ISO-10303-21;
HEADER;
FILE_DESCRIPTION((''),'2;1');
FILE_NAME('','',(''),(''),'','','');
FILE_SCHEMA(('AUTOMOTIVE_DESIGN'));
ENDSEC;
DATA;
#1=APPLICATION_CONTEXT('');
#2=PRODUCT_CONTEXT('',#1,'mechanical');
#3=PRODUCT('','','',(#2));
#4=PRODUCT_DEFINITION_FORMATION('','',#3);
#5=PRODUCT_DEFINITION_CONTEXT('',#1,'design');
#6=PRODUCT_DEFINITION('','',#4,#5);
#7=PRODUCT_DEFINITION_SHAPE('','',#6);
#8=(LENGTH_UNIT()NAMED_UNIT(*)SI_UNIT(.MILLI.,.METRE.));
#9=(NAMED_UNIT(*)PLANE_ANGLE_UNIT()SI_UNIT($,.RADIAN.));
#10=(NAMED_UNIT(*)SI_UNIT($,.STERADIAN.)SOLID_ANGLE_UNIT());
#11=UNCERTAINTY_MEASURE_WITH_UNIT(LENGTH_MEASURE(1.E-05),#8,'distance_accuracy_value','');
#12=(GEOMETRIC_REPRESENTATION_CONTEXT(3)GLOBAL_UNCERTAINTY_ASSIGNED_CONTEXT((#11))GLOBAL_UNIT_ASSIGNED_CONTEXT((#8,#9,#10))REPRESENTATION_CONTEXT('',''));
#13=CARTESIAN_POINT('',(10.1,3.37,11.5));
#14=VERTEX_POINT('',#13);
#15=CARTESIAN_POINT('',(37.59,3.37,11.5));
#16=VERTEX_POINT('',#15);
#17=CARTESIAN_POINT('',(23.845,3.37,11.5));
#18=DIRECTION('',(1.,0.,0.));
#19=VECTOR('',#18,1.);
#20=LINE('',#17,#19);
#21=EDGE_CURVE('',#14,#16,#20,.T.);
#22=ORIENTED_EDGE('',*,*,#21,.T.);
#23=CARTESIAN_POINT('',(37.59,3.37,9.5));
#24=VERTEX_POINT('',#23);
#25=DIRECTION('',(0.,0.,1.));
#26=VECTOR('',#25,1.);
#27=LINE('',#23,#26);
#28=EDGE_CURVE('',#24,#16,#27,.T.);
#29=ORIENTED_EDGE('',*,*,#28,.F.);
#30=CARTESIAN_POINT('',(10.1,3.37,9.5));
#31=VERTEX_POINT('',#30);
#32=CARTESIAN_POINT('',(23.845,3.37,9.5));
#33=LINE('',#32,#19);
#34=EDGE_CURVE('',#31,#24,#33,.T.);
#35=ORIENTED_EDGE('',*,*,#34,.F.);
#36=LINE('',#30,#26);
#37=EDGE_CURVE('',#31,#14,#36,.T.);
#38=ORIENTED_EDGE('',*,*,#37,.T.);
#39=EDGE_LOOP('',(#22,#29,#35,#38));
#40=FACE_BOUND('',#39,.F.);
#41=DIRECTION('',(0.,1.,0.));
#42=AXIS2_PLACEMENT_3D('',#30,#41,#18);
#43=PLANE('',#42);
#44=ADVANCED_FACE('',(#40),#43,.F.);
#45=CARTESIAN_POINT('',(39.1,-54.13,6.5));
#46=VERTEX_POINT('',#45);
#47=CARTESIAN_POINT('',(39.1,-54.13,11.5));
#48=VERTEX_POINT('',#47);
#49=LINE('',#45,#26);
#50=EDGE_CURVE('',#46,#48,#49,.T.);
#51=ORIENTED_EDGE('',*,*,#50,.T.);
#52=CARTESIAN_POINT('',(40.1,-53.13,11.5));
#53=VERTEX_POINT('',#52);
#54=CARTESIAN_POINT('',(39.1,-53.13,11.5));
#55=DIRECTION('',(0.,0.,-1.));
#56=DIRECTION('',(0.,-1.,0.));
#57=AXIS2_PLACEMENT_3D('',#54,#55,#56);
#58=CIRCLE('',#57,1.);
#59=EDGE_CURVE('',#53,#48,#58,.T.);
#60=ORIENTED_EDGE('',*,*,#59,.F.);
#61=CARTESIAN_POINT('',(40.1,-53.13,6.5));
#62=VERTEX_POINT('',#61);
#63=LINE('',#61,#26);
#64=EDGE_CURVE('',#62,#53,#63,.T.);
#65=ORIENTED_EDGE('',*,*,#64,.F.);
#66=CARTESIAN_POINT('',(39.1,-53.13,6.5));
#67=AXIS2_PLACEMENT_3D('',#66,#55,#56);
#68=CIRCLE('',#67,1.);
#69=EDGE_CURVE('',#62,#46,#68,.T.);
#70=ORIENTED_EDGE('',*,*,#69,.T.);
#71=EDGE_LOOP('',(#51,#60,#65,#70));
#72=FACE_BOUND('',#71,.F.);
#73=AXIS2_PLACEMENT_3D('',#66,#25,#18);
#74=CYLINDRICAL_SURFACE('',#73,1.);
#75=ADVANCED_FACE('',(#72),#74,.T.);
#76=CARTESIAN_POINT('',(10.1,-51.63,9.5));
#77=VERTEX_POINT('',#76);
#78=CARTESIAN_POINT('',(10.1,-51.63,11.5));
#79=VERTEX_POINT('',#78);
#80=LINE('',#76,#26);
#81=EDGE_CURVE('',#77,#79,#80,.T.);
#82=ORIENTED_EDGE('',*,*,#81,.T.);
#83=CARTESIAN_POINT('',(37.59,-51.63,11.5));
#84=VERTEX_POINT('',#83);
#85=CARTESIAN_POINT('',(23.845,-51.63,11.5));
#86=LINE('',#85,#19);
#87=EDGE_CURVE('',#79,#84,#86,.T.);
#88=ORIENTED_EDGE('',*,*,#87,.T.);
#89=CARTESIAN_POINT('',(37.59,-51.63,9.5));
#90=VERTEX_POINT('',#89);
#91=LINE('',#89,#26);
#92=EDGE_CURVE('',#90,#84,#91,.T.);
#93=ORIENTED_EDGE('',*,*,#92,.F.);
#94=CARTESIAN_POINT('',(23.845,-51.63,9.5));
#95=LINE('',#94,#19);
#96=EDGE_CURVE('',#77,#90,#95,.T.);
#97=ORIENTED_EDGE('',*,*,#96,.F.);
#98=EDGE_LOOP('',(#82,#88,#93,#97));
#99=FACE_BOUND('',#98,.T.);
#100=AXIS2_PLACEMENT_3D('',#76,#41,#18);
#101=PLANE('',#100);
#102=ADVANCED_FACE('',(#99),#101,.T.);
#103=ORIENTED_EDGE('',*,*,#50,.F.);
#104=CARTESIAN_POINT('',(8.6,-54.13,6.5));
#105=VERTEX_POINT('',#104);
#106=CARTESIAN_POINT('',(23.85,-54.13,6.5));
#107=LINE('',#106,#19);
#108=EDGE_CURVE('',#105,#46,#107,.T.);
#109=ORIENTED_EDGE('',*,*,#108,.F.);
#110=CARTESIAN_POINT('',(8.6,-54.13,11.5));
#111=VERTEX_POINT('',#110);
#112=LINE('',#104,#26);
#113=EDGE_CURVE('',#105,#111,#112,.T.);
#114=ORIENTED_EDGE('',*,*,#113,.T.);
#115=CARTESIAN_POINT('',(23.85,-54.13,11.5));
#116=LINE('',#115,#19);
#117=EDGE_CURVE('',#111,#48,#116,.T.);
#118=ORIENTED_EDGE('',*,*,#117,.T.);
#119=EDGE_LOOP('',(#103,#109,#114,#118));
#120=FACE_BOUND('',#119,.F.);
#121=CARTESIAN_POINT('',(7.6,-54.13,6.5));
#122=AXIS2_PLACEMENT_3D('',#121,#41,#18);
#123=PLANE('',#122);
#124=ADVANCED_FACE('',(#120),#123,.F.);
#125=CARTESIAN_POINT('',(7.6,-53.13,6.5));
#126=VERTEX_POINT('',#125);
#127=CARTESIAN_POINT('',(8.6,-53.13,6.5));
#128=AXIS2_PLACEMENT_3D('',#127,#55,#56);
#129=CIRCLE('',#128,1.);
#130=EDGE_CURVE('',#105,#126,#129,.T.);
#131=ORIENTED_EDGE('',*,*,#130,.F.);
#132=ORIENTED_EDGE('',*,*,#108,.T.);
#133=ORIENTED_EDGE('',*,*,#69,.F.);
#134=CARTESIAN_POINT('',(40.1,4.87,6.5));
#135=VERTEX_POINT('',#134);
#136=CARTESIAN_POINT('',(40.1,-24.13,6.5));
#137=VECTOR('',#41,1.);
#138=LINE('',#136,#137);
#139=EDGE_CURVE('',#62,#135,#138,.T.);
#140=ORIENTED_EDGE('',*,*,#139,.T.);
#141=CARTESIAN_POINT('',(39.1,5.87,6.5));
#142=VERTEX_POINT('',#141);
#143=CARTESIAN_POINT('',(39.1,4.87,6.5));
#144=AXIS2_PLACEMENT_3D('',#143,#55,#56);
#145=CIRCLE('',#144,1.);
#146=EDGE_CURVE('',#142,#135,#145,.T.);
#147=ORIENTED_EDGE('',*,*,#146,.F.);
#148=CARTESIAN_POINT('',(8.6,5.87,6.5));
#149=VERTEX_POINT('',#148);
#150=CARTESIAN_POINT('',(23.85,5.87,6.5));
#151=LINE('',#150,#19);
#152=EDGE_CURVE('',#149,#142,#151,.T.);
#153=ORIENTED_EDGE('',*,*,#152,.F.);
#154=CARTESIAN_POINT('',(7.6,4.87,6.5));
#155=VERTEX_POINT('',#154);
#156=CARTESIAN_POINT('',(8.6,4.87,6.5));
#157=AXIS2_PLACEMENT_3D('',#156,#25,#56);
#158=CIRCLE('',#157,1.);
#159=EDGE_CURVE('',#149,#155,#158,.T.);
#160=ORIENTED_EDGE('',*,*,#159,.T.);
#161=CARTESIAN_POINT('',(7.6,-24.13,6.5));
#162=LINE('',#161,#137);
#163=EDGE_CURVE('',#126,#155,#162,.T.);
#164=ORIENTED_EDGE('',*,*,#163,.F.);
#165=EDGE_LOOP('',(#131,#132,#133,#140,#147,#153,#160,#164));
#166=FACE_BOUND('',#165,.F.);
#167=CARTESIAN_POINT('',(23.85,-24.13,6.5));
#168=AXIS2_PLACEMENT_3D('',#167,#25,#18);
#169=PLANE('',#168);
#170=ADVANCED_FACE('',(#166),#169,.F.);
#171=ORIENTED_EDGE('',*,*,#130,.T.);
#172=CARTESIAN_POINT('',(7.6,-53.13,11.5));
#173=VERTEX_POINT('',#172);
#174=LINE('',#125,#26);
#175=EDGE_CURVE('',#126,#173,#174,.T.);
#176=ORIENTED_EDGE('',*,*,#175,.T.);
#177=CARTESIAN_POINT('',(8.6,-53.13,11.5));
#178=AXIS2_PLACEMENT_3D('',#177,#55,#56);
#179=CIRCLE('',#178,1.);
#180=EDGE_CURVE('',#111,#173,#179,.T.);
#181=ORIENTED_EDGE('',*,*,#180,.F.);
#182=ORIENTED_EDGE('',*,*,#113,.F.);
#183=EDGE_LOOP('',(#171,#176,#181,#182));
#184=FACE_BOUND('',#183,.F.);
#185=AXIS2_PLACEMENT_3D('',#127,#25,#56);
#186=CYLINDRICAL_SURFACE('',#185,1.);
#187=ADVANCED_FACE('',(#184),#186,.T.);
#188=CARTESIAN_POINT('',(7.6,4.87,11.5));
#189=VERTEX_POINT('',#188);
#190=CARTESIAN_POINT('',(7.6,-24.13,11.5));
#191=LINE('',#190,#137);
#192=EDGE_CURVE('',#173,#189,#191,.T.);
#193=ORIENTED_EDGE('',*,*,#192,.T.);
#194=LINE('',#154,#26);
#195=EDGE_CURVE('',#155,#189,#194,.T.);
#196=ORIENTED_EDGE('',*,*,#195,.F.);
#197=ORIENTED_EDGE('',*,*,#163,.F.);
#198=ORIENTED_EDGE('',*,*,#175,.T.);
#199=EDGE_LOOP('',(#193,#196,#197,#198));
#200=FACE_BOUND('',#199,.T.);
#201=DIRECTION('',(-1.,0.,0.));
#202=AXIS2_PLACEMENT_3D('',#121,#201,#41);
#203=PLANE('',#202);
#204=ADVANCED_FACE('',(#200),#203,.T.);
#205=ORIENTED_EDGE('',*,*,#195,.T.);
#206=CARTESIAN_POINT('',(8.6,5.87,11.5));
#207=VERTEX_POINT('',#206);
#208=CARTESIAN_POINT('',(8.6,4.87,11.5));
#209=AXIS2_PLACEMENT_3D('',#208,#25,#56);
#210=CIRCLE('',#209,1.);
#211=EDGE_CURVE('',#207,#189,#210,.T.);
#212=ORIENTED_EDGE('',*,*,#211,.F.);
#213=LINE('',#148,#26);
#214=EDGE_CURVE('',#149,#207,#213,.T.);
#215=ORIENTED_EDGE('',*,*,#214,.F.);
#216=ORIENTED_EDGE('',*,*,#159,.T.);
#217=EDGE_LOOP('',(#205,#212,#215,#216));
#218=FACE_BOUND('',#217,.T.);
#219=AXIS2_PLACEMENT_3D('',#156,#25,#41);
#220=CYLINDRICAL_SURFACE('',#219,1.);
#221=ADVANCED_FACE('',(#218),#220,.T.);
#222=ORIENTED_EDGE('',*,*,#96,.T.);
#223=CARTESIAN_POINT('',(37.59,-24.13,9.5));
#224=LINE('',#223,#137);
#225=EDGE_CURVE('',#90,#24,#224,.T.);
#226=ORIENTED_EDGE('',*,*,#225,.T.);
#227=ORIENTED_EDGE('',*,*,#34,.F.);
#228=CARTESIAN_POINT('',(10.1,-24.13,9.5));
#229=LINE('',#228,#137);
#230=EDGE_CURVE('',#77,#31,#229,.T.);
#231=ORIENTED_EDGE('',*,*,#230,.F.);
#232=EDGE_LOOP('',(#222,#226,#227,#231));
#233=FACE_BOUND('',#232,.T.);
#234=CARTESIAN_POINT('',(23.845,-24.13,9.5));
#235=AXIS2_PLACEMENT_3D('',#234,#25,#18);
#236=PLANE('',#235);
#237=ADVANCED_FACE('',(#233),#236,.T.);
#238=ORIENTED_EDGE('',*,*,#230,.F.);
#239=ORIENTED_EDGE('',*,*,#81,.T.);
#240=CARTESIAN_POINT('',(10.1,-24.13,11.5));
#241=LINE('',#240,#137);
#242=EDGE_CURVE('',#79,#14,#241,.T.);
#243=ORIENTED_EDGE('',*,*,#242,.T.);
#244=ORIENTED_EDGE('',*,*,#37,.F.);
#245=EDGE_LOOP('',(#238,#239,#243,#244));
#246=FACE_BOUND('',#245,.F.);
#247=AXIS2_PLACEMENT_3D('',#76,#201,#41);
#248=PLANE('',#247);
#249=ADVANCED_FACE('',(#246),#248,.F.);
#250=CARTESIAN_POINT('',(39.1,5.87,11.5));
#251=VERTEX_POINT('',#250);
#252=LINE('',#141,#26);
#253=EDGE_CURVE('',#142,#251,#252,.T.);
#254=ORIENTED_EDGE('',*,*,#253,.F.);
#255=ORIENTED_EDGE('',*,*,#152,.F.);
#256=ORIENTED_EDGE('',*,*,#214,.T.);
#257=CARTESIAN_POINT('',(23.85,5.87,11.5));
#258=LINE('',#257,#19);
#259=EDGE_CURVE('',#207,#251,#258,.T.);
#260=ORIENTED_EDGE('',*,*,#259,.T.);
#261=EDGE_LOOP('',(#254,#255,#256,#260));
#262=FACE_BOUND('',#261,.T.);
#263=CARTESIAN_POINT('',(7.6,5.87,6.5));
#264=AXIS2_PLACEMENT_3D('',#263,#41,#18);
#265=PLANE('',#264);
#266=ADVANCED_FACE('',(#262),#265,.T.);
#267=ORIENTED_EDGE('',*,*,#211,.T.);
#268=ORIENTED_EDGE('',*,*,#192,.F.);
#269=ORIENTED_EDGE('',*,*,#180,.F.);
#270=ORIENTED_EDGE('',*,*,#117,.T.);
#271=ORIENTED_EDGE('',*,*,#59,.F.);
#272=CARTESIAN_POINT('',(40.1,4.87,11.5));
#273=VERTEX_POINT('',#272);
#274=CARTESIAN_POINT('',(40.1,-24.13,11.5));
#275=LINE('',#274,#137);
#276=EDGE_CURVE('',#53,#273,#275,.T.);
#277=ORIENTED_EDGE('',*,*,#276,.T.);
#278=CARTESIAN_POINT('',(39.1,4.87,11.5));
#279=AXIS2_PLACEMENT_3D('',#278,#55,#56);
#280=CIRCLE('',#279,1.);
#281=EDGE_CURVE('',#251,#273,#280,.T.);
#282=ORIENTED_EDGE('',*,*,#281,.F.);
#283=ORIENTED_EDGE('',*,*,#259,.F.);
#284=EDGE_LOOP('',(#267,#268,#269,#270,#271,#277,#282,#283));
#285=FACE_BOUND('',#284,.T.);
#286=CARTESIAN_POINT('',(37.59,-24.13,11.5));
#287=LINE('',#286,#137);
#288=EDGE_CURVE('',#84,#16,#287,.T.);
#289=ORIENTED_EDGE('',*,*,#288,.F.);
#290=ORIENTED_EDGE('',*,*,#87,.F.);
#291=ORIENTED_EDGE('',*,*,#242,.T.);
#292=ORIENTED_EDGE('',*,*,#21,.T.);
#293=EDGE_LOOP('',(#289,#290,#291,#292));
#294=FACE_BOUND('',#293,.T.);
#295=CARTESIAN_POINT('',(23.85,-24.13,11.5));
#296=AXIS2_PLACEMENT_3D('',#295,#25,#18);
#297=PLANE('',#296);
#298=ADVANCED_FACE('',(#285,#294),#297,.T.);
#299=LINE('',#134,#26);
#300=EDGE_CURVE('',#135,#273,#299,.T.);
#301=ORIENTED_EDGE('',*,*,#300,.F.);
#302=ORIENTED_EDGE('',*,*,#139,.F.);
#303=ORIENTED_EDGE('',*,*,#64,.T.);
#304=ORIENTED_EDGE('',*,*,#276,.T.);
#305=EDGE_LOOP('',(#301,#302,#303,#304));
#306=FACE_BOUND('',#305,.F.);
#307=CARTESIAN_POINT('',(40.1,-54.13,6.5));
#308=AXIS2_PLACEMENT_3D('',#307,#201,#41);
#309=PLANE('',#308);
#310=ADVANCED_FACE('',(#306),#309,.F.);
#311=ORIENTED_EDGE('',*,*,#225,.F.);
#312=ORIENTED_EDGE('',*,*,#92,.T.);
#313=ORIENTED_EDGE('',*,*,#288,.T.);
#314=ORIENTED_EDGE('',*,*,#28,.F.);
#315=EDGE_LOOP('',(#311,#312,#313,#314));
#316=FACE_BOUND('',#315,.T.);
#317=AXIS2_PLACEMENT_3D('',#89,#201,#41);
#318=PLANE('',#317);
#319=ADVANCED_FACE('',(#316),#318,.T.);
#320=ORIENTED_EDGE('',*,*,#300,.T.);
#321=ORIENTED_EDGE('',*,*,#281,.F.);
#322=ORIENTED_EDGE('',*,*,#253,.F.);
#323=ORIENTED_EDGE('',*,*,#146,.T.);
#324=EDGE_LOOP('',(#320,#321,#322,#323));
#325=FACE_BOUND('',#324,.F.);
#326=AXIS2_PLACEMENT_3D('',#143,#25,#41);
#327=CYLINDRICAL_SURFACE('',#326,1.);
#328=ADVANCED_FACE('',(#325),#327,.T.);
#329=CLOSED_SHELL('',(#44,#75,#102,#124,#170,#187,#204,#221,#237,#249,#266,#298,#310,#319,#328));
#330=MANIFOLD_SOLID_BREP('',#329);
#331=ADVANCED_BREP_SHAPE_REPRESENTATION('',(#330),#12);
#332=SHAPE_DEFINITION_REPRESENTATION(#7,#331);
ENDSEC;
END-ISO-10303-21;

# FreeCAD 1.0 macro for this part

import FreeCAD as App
import Part
import Sketcher
Q = App.Units.Quantity


def edges_at(feature, points):
    """Names of the edges that pass closest to the given points."""
    edges = feature.Shape.Edges
    near = lambda p: min(range(len(edges)), key=lambda i: edges[i].distToShape(Part.Vertex(*p))[0])
    return sorted({f"Edge{near(p) + 1}" for p in points})

doc = App.newDocument("Part")
body = doc.addObject("PartDesign::Body", "Body")

sketch1 = doc.addObject("Sketcher::SketchObject", "Sketch")
body.addObject(sketch1)
sketch1.AttachmentSupport = (doc.XY_Plane, [""])
sketch1.MapMode = "FlatFace"
sketch1.AttachmentOffset = App.Placement(App.Vector(0, 0, 4), App.Rotation())
sketch1.addGeometry(Part.LineSegment(App.Vector(10, 3, 0), App.Vector(10, -52, 0)), False)
sketch1.addGeometry(Part.LineSegment(App.Vector(10, -52, 0), App.Vector(38, -52, 0)), False)
sketch1.addGeometry(Part.LineSegment(App.Vector(38, -52, 0), App.Vector(38, 3, 0)), False)
sketch1.addGeometry(Part.LineSegment(App.Vector(38, 3, 0), App.Vector(10, 3, 0)), False)
sketch1.addConstraint(Sketcher.Constraint("Coincident", 0, 2, 1, 1))
sketch1.addConstraint(Sketcher.Constraint("Coincident", 1, 2, 2, 1))
sketch1.addConstraint(Sketcher.Constraint("Coincident", 2, 2, 3, 1))
sketch1.addConstraint(Sketcher.Constraint("Coincident", 3, 2, 0, 1))
sketch1.addConstraint(Sketcher.Constraint("Vertical", 0))
sketch1.addConstraint(Sketcher.Constraint("Horizontal", 1))
sketch1.addConstraint(Sketcher.Constraint("Vertical", 2))
sketch1.addConstraint(Sketcher.Constraint("Horizontal", 3))
sketch1.addConstraint(Sketcher.Constraint("DistanceY", 0, 2, 0, 1, Q("55 mm")))
sketch1.addConstraint(Sketcher.Constraint("DistanceX", 1, 1, 1, 2, Q("27.49 mm")))
sketch1.addConstraint(Sketcher.Constraint("DistanceX", -1, 1, 0, 2, Q("10.1 mm")))
sketch1.addConstraint(Sketcher.Constraint("DistanceY", 0, 2, -1, 1, Q("51.63 mm")))
pad1 = doc.addObject("PartDesign::Pad", "Pad")
body.addObject(pad1)
pad1.Profile = sketch1
pad1.Length = 2
body2 = doc.addObject("PartDesign::Body", "Body001")

sketch2 = doc.addObject("Sketcher::SketchObject", "Sketch001")
body2.addObject(sketch2)
sketch2.AttachmentSupport = (doc.getObject("XY_Plane001"), [""])
sketch2.MapMode = "FlatFace"
sketch2.AttachmentOffset = App.Placement(App.Vector(0, 0, 1), App.Rotation())
sketch2.addGeometry(Part.LineSegment(App.Vector(8, 6, 0), App.Vector(8, -54, 0)), False)
sketch2.addGeometry(Part.LineSegment(App.Vector(8, -54, 0), App.Vector(40, -54, 0)), False)
sketch2.addGeometry(Part.LineSegment(App.Vector(40, -54, 0), App.Vector(40, 6, 0)), False)
sketch2.addGeometry(Part.LineSegment(App.Vector(40, 6, 0), App.Vector(8, 6, 0)), False)
sketch2.addConstraint(Sketcher.Constraint("Coincident", 0, 2, 1, 1))
sketch2.addConstraint(Sketcher.Constraint("Coincident", 1, 2, 2, 1))
sketch2.addConstraint(Sketcher.Constraint("Coincident", 2, 2, 3, 1))
sketch2.addConstraint(Sketcher.Constraint("Coincident", 3, 2, 0, 1))
sketch2.addConstraint(Sketcher.Constraint("Vertical", 0))
sketch2.addConstraint(Sketcher.Constraint("Horizontal", 1))
sketch2.addConstraint(Sketcher.Constraint("Vertical", 2))
sketch2.addConstraint(Sketcher.Constraint("Horizontal", 3))
sketch2.addConstraint(Sketcher.Constraint("DistanceY", 0, 2, 0, 1, Q("60 mm")))
sketch2.addConstraint(Sketcher.Constraint("DistanceX", 1, 1, 1, 2, Q("32.5 mm")))
sketch2.addConstraint(Sketcher.Constraint("DistanceX", -1, 1, 0, 2, Q("7.6 mm")))
sketch2.addConstraint(Sketcher.Constraint("DistanceY", 0, 2, -1, 1, Q("54.13 mm")))
pad2 = doc.addObject("PartDesign::Pad", "Pad001")
body2.addObject(pad2)
pad2.Profile = sketch2
pad2.Length = 5
doc.recompute()

boolean = doc.addObject("PartDesign::Boolean", "Boolean")
body2.addObject(boolean)
boolean.Type = "Cut"
boolean.addObjects([body])
doc.recompute()

fillet = doc.addObject("PartDesign::Fillet", "Fillet")
body2.addObject(fillet)
fillet.Base = (boolean, edges_at(boolean, [(40.1, 5.87, 3.5)]))
fillet.Radius = 1
doc.recompute()

fillet2 = doc.addObject("PartDesign::Fillet", "Fillet001")
body2.addObject(fillet2)
fillet2.Base = (fillet, edges_at(fillet, [(7.6, 5.87, 3.5)]))
fillet2.Radius = 1
doc.recompute()

fillet3 = doc.addObject("PartDesign::Fillet", "Fillet002")
body2.addObject(fillet3)
fillet3.Base = (fillet2, edges_at(fillet2, [(40.1, -54.13, 3.5)]))
fillet3.Radius = 1
doc.recompute()

fillet4 = doc.addObject("PartDesign::Fillet", "Fillet003")
body2.addObject(fillet4)
fillet4.Base = (fillet3, edges_at(fillet3, [(7.6, -54.13, 3.5)]))
fillet4.Radius = 1
body3 = doc.addObject("PartDesign::Body", "Body002")
doc.recompute()

body2.Placement = App.Placement(App.Vector(0, 0, 5.5), App.Rotation(App.Vector(0, 0, 1), 0))
boolean2 = doc.addObject("PartDesign::Boolean", "Boolean001")
body3.addObject(boolean2)
boolean2.Type = "Fuse"
boolean2.addObjects([body2])

doc.recompute()
